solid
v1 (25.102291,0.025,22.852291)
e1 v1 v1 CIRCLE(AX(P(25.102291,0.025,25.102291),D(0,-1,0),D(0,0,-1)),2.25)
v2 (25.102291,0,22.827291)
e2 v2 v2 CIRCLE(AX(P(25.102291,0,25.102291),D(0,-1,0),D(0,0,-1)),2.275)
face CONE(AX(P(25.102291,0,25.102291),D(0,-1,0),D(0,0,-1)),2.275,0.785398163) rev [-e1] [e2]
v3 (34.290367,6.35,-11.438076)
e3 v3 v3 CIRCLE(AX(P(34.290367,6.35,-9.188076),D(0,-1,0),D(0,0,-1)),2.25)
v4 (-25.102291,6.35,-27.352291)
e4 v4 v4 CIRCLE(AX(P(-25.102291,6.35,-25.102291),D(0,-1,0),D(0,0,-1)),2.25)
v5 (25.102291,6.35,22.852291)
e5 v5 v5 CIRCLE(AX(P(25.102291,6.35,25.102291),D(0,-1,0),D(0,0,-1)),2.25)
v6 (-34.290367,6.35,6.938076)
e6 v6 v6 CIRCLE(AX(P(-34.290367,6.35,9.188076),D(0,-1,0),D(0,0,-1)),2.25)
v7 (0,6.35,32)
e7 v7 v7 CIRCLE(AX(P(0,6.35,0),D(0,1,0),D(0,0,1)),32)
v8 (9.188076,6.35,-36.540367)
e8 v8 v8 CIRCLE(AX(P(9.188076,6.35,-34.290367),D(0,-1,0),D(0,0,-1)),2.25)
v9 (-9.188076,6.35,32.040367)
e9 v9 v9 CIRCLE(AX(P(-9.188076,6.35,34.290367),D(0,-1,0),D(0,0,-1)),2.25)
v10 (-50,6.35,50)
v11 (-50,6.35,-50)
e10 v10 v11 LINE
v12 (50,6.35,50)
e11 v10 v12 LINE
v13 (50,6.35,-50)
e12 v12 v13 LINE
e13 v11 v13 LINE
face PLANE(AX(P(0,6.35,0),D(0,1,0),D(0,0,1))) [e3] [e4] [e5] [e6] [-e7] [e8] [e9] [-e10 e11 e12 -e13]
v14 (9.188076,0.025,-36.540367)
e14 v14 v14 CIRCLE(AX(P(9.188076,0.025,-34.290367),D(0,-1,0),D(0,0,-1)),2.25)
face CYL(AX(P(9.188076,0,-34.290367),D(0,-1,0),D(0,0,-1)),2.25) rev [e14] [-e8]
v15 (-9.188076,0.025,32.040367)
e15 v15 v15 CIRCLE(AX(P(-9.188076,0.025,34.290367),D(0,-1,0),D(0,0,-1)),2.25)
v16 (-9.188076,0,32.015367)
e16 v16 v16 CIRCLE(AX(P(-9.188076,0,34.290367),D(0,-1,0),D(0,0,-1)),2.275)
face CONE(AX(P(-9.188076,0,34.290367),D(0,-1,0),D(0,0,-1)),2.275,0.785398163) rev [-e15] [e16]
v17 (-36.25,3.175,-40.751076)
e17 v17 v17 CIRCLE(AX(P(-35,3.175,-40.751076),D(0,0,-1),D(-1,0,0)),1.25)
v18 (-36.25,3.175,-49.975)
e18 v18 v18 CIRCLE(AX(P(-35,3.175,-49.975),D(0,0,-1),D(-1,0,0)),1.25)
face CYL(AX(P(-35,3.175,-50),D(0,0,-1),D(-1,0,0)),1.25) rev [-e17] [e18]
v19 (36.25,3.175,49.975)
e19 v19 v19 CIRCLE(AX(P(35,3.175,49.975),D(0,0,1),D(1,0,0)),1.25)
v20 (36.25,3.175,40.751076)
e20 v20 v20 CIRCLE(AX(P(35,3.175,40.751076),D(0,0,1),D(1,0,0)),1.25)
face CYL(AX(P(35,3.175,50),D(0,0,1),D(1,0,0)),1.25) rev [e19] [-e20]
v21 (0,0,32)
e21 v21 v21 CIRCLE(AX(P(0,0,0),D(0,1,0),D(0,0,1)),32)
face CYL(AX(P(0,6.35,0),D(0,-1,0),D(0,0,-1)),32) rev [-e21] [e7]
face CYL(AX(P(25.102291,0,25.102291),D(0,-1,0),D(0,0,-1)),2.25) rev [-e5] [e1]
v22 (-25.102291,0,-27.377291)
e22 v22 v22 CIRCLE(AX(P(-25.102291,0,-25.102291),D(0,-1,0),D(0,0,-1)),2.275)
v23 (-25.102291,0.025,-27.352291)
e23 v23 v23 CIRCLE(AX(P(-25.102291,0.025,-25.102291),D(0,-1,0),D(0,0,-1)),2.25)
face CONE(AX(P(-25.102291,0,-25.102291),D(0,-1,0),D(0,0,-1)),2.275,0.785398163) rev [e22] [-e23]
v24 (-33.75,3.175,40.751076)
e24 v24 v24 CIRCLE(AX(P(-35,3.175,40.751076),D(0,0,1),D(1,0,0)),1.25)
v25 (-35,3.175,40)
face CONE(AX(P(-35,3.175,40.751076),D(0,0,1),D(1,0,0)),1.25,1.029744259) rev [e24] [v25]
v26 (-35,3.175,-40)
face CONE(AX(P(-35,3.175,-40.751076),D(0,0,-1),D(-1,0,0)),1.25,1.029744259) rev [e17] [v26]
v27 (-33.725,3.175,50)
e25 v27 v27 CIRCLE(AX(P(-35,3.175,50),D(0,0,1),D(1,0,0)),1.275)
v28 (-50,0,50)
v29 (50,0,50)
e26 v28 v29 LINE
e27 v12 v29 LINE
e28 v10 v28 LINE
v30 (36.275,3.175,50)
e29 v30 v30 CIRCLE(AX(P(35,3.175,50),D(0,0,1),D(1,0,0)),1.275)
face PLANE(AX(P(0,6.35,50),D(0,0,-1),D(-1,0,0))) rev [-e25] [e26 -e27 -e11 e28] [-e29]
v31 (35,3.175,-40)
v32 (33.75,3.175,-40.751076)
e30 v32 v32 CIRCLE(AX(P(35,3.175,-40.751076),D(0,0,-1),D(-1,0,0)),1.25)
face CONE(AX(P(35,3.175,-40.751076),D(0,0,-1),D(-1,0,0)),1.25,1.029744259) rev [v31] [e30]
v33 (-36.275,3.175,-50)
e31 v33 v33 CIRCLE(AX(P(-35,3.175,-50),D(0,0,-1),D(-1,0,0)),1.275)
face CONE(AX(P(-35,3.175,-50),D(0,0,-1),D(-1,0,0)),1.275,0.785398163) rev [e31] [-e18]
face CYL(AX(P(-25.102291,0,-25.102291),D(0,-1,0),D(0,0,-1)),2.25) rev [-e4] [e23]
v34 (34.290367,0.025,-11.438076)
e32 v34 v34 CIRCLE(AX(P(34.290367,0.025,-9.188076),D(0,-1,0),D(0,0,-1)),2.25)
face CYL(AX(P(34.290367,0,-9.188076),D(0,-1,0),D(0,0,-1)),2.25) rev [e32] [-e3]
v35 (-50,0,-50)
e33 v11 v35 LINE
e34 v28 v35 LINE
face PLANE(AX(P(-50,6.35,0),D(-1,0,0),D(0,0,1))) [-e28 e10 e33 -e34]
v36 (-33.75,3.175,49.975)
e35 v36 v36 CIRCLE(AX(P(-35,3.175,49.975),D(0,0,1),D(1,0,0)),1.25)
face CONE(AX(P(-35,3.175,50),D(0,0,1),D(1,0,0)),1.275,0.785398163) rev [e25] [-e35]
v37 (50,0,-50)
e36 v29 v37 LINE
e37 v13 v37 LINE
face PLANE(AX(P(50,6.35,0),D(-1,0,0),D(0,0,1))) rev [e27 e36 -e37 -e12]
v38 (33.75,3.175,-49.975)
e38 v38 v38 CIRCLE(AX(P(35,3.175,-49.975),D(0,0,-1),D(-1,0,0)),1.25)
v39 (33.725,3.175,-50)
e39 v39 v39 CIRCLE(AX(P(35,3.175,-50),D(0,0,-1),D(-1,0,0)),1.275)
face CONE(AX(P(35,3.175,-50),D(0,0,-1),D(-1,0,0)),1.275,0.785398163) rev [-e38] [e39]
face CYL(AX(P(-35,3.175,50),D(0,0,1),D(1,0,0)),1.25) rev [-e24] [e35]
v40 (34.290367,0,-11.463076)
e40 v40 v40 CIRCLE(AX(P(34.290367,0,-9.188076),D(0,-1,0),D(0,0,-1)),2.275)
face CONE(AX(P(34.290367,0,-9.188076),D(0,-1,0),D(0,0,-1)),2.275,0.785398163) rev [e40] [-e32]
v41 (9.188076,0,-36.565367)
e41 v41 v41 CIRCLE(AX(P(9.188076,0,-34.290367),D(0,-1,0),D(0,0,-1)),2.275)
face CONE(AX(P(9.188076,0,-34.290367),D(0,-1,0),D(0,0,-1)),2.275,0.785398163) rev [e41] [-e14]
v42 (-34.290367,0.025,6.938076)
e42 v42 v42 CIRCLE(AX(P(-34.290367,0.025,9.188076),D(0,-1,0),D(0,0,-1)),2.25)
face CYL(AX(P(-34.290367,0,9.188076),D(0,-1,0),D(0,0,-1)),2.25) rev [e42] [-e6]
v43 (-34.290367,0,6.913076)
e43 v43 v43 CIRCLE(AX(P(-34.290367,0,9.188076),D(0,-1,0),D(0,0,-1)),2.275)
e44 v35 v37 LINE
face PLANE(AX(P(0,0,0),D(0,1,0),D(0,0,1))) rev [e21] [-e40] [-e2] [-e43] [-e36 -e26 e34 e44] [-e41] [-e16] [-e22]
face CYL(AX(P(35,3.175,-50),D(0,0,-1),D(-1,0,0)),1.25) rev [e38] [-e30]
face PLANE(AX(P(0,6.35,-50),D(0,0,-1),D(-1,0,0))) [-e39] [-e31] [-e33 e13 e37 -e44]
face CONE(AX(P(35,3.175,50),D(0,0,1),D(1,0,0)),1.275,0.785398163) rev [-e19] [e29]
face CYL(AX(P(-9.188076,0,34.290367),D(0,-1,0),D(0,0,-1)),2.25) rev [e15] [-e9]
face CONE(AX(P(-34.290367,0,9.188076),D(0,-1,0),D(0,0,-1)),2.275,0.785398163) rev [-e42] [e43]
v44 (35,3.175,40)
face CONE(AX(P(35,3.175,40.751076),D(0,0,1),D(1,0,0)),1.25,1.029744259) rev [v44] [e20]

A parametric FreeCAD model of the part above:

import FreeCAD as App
import Part
import Sketcher
Q = App.Units.Quantity

doc = App.newDocument("Part")
body = doc.addObject("PartDesign::Body", "Body")

# Sketch on XZ plane
sketch1 = body.newObject("Sketcher::SketchObject", "Sketch")
sketch1.AttachmentSupport = (doc.getObject("XZ_Plane"), [""])
sketch1.MapMode = "FlatFace"
sketch1.addGeometry([
    Part.LineSegment(App.Vector(-50, -50, 0), App.Vector(-50, 50, 0)),  # 0
    Part.LineSegment(App.Vector(-50, 50, 0), App.Vector(50, 50, 0)),  # 1
    Part.LineSegment(App.Vector(50, 50, 0), App.Vector(50, -50, 0)),  # 2
    Part.LineSegment(App.Vector(50, -50, 0), App.Vector(-50, -50, 0)),  # 3
    Part.Circle(App.Vector(0, 0, 0), App.Vector(0, 0, 1), 32),  # 4
], False)
sketch1.addConstraint([
    Sketcher.Constraint("Coincident", 0, 2, 1, 1),
    Sketcher.Constraint("Coincident", 1, 2, 2, 1),
    Sketcher.Constraint("Coincident", 2, 2, 3, 1),
    Sketcher.Constraint("Coincident", 3, 2, 0, 1),
    Sketcher.Constraint("Vertical", 0),
    Sketcher.Constraint("Horizontal", 1),
    Sketcher.Constraint("Vertical", 2),
    Sketcher.Constraint("Horizontal", 3),
    Sketcher.Constraint("Coincident", 4, 3, -1, 1),
    Sketcher.Constraint("Symmetric", 0, 2, 2, 2, -1, 1),
    Sketcher.Constraint("Equal", 3, 0),
    Sketcher.Constraint("Diameter", 4, Q("64 mm")),
    Sketcher.Constraint("DistanceX", 1, 1, 1, 2, Q("100 mm")),
])
pad1 = body.newObject("PartDesign::Pad", "Pad")
pad1.Profile = sketch1
pad1.Length = 6.35
pad1.Reversed = True

# Sketch on XZ plane
sketch2 = body.newObject("Sketcher::SketchObject", "Sketch001")
sketch2.AttachmentSupport = (doc.getObject("XZ_Plane"), [""])
sketch2.MapMode = "FlatFace"
sketch2.addGeometry([
    Part.Circle(App.Vector(9.2, -34.3, 0), App.Vector(0, 0, 1), 2.2),  # 0
    Part.Circle(App.Vector(-25.1, -25.1, 0), App.Vector(0, 0, 1), 2.2),  # 1
    Part.Circle(App.Vector(-34.3, 9.2, 0), App.Vector(0, 0, 1), 2.2),  # 2
    Part.Circle(App.Vector(-9.2, 34.3, 0), App.Vector(0, 0, 1), 2.2),  # 3
    Part.Circle(App.Vector(25.1, 25.1, 0), App.Vector(0, 0, 1), 2.2),  # 4
    Part.Circle(App.Vector(34.3, -9.2, 0), App.Vector(0, 0, 1), 2.2),  # 5
], False)
sketch2.addConstraint([
    Sketcher.Constraint("Equal", 0, 1),
    Sketcher.Constraint("Equal", 1, 2),
    Sketcher.Constraint("Equal", 2, 3),
    Sketcher.Constraint("Equal", 3, 4),
    Sketcher.Constraint("Equal", 4, 5),
    Sketcher.Constraint("Symmetric", 0, 3, 3, 3, -1, 1),
    Sketcher.Constraint("Symmetric", 1, 3, 4, 3, -1, 1),
    Sketcher.Constraint("Symmetric", 2, 3, 5, 3, -1, 1),
    Sketcher.Constraint("Diameter", 0, Q("4.5 mm")),
    Sketcher.Constraint("DistanceX", 1, 3, -1, 1, Q("25.102291 mm")),
    Sketcher.Constraint("DistanceY", 1, 3, -1, 1, Q("25.102291 mm")),
    Sketcher.Constraint("DistanceX", 2, 3, 3, 3, Q("25.102291 mm")),
    Sketcher.Constraint("DistanceY", 2, 3, 3, 3, Q("25.102291 mm")),
    Sketcher.Constraint("DistanceX", -1, 1, 0, 3, Q("9.188076 mm")),
    Sketcher.Constraint("DistanceY", 0, 3, -1, 1, Q("34.290367 mm")),
])
doc.recompute()
hole = body.newObject("PartDesign::Hole", "Hole")
hole.Profile = sketch2
hole.ThreadType = "None"
hole.Diameter = 4.5
hole.DepthType = "ThroughAll"
hole.HoleCutType = "Countersink"
hole.HoleCutDiameter = 4.55
hole.HoleCutCountersinkAngle = 90

# Sketch on XY plane
sketch3 = body.newObject("Sketcher::SketchObject", "Sketch002")
sketch3.AttachmentSupport = (doc.getObject("XY_Plane"), [""])
sketch3.MapMode = "FlatFace"
sketch3.AttachmentOffset = App.Placement(App.Vector(0, 0, 50), App.Rotation())
sketch3.addGeometry([
    Part.Circle(App.Vector(-35, 3.2, 0), App.Vector(0, 0, 1), 1.2),
    Part.Circle(App.Vector(35, 3.2, 0), App.Vector(0, 0, 1), 1.2),
], False)
sketch3.addConstraint([
    Sketcher.Constraint("Equal", 0, 1),
    Sketcher.Constraint("Symmetric", 0, 3, 1, 3, -2),
    Sketcher.Constraint("Diameter", 0, Q("2.5 mm")),
    Sketcher.Constraint("DistanceX", 0, 3, -1, 1, Q("35 mm")),
    Sketcher.Constraint("DistanceY", -1, 1, 0, 3, Q("3.175 mm")),
])
doc.recompute()
hole2 = body.newObject("PartDesign::Hole", "Hole001")
hole2.Profile = sketch3
hole2.ThreadType = "None"
hole2.Diameter = 2.5
hole2.DepthType = "Dimension"
hole2.Depth = 9.248924
hole2.DrillPoint = "Angled"
hole2.DrillPointAngle = 118
hole2.HoleCutType = "Countersink"
hole2.HoleCutDiameter = 2.55
hole2.HoleCutCountersinkAngle = 90

# Sketch on XY plane
sketch4 = body.newObject("Sketcher::SketchObject", "Sketch003")
sketch4.AttachmentSupport = (doc.getObject("XY_Plane"), [""])
sketch4.MapMode = "FlatFace"
sketch4.AttachmentOffset = App.Placement(App.Vector(0, 0, -50), App.Rotation())
sketch4.addGeometry([
    Part.Circle(App.Vector(35, 3.2, 0), App.Vector(0, 0, 1), 1.2),
    Part.Circle(App.Vector(-35, 3.2, 0), App.Vector(0, 0, 1), 1.2),
], False)
sketch4.addConstraint([
    Sketcher.Constraint("Equal", 0, 1),
    Sketcher.Constraint("Symmetric", 0, 3, 1, 3, -2),
    Sketcher.Constraint("Diameter", 0, Q("2.5 mm")),
    Sketcher.Constraint("DistanceX", -1, 1, 0, 3, Q("35 mm")),
    Sketcher.Constraint("DistanceY", -1, 1, 0, 3, Q("3.175 mm")),
])
doc.recompute()
hole3 = body.newObject("PartDesign::Hole", "Hole002")
hole3.Profile = sketch4
hole3.ThreadType = "None"
hole3.Diameter = 2.5
hole3.DepthType = "Dimension"
hole3.Depth = 9.248924
hole3.DrillPoint = "Angled"
hole3.DrillPointAngle = 118
hole3.HoleCutType = "Countersink"
hole3.HoleCutDiameter = 2.55
hole3.HoleCutCountersinkAngle = 90
hole3.Reversed = True

doc.recompute()
